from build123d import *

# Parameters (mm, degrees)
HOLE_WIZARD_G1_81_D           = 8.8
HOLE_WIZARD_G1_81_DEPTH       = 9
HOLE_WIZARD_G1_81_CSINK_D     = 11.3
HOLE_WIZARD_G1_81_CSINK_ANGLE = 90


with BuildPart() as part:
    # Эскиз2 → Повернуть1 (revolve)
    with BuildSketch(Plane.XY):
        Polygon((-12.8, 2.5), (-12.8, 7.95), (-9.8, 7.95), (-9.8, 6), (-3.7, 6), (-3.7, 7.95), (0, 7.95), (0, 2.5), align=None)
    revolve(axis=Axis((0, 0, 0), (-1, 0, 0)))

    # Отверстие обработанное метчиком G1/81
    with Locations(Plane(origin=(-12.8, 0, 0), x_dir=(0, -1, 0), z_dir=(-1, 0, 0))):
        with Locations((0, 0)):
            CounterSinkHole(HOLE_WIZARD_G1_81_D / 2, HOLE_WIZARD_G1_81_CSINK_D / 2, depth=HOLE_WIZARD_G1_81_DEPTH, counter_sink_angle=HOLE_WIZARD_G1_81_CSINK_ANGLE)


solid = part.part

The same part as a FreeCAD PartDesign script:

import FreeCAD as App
import Part
import Sketcher

V = App.Vector


def add_polygon(sketch, points):
    """Adds a closed chain of lines whose ends are joined by coincident constraints."""
    first, n = sketch.GeometryCount, len(points)
    for a, b in zip(points, points[1:] + points[:1]):
        sketch.addGeometry(Part.LineSegment(App.Vector(*a, 0), App.Vector(*b, 0)), False)
    for i in range(n):
        sketch.addConstraint(Sketcher.Constraint("Coincident", first + i, 2, first + (i + 1) % n, 1))

doc = App.newDocument("Part")
body = doc.addObject("PartDesign::Body", "Body")

# Sketch on XY plane
sketch1 = doc.addObject("Sketcher::SketchObject", "Sketch")
body.addObject(sketch1)
sketch1.AttachmentSupport = (doc.XY_Plane, [""])
sketch1.MapMode = "FlatFace"
add_polygon(sketch1, [(-12.8, 8), (-12.8, 2.5), (0, 2.5), (0, 8), (-3.7, 8), (-3.7, 6), (-9.8, 6), (-9.8, 8)])  # lines 0-7
sketch1.addConstraint([
    Sketcher.Constraint("Vertical", 0),
    Sketcher.Constraint("Horizontal", 1),
    Sketcher.Constraint("Vertical", 2),
    Sketcher.Constraint("Horizontal", 3),
    Sketcher.Constraint("Vertical", 4),
    Sketcher.Constraint("Horizontal", 5),
    Sketcher.Constraint("Vertical", 6),
    Sketcher.Constraint("Horizontal", 7),
    Sketcher.Constraint("PointOnObject", 1, 2, -2),
    Sketcher.Constraint("Horizontal", 3, 2, 6, 2),
    Sketcher.Constraint("DistanceX", 7, 2, 7, 1, 3.0),
    Sketcher.Constraint("DistanceX", 1, 1, 1, 2, 12.8),
    Sketcher.Constraint("DistanceX", 3, 2, 3, 1, 3.7),
    Sketcher.Constraint("DistanceY", -1, 1, 4, 2, 6.0),
    Sketcher.Constraint("DistanceY", 0, 2, 0, 1, 5.45),
    Sketcher.Constraint("DistanceY", 4, 2, 4, 1, 1.95),
])
revolution = doc.addObject("PartDesign::Revolution", "Revolution")
body.addObject(revolution)
revolution.Profile = sketch1
revolution.ReferenceAxis = (sketch1, ["H_Axis"])
revolution.Angle = 360

# Sketch on YZ plane
sketch2 = doc.addObject("Sketcher::SketchObject", "Sketch001")
body.addObject(sketch2)
sketch2.AttachmentSupport = (doc.YZ_Plane, [""])
sketch2.MapMode = "FlatFace"
sketch2.AttachmentOffset = App.Placement(V(0, 0, -12.8), App.Rotation())
sketch2.addGeometry(Part.Circle(V(0, 0, 0), V(0, 0, 1), 4.4), False)
sketch2.addConstraint([
    Sketcher.Constraint("Coincident", 0, 3, -1, 1),
    Sketcher.Constraint("Diameter", 0, 8.8),
])
doc.recompute()
hole = doc.addObject("PartDesign::Hole", "Hole")
body.addObject(hole)
hole.Profile = sketch2
hole.ThreadType = "None"
hole.Diameter = 8.8
hole.DepthType = "Dimension"
hole.Depth = 9
hole.DrillPoint = "Flat"
hole.HoleCutType = "Countersink"
hole.HoleCutDiameter = 11.3
hole.HoleCutCountersinkAngle = 90
hole.Reversed = True

doc.recompute()
